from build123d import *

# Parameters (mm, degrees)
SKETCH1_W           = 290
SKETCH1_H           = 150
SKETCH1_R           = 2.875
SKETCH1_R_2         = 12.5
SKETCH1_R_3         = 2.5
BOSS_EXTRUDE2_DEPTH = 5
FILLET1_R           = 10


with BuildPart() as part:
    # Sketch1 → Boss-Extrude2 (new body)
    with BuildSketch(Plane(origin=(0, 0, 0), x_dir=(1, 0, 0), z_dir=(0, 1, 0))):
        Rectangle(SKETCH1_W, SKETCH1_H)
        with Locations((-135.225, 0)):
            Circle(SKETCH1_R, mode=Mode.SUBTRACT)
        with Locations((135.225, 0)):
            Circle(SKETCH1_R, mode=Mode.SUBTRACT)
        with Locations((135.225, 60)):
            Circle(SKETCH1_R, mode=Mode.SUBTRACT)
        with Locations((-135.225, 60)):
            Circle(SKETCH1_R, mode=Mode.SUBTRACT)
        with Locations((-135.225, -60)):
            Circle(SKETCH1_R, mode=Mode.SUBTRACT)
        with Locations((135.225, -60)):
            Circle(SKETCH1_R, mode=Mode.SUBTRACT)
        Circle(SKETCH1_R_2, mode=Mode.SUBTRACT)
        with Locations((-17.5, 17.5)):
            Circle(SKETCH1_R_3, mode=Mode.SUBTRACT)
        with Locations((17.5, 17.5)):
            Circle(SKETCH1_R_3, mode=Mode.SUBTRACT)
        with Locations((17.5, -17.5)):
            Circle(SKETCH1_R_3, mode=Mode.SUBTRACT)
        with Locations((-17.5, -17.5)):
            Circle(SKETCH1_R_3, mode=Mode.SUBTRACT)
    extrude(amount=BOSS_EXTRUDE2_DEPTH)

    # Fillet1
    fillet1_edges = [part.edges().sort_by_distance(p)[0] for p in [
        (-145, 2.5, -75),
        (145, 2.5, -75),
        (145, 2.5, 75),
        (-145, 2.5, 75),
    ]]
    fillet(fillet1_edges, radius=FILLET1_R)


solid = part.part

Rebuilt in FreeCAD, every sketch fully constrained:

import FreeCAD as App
import Part
import Sketcher

V = App.Vector


def edges_at(feature, points):
    """Names of the edges that pass closest to the given points."""
    edges = feature.Shape.Edges
    near = lambda p: min(range(len(edges)), key=lambda i: edges[i].distToShape(Part.Vertex(*p))[0])
    return sorted({f"Edge{near(p) + 1}" for p in points})

doc = App.newDocument("Part")
body = doc.addObject("PartDesign::Body", "Body")

sketch1 = body.newObject("Sketcher::SketchObject", "Sketch")
sketch1.AttachmentSupport = (doc.getObject("XZ_Plane"), [""])
sketch1.MapMode = "FlatFace"
sketch1.addGeometry([
    Part.LineSegment(V(-145, -75, 0), V(-145, 75, 0)),
    Part.LineSegment(V(-145, 75, 0), V(145, 75, 0)),
    Part.LineSegment(V(145, 75, 0), V(145, -75, 0)),
    Part.LineSegment(V(145, -75, 0), V(-145, -75, 0)),
    Part.Circle(V(-135.2, 60, 0), V(0, 0, 1), 2.9),
    Part.Circle(V(-135.2, 0, 0), V(0, 0, 1), 2.9),
    Part.Circle(V(-17.5, 17.5, 0), V(0, 0, 1), 2.5),
    Part.Circle(V(135.2, 60, 0), V(0, 0, 1), 2.9),
    Part.Circle(V(17.5, 17.5, 0), V(0, 0, 1), 2.5),
    Part.Circle(V(0, 0, 0), V(0, 0, 1), 12.5),
    Part.Circle(V(135.2, 0, 0), V(0, 0, 1), 2.9),
    Part.Circle(V(-17.5, -17.5, 0), V(0, 0, 1), 2.5),
    Part.Circle(V(-135.2, -60, 0), V(0, 0, 1), 2.9),
    Part.Circle(V(17.5, -17.5, 0), V(0, 0, 1), 2.5),
    Part.Circle(V(135.2, -60, 0), V(0, 0, 1), 2.9),
], False)
sketch1.addConstraint([
    Sketcher.Constraint("Coincident", 0, 2, 1, 1),
    Sketcher.Constraint("Coincident", 1, 2, 2, 1),
    Sketcher.Constraint("Coincident", 2, 2, 3, 1),
    Sketcher.Constraint("Coincident", 3, 2, 0, 1),
    Sketcher.Constraint("Vertical", 0),
    Sketcher.Constraint("Horizontal", 1),
    Sketcher.Constraint("Vertical", 2),
    Sketcher.Constraint("Horizontal", 3),
    Sketcher.Constraint("Coincident", 9, 3, -1, 1),
    Sketcher.Constraint("Equal", 4, 5),
    Sketcher.Constraint("Equal", 5, 7),
    Sketcher.Constraint("Equal", 6, 8),
    Sketcher.Constraint("Equal", 7, 10),
    Sketcher.Constraint("Equal", 8, 11),
    Sketcher.Constraint("Equal", 10, 12),
    Sketcher.Constraint("Equal", 11, 13),
    Sketcher.Constraint("Equal", 12, 14),
    Sketcher.Constraint("Symmetric", 5, 3, 10, 3, -1, 1),
    Sketcher.Constraint("Symmetric", 8, 3, 11, 3, -1, 1),
    Sketcher.Constraint("Symmetric", 7, 3, 12, 3, -1, 1),
    Sketcher.Constraint("Symmetric", 6, 3, 13, 3, -1, 1),
    Sketcher.Constraint("Symmetric", 4, 3, 14, 3, -1, 1),
    Sketcher.Constraint("Symmetric", 0, 2, 2, 2, -1, 1),
    Sketcher.Constraint("Symmetric", 4, 3, 7, 3, -2),
    Sketcher.Constraint("Symmetric", 6, 3, 8, 3, -2),
    Sketcher.Constraint("PointOnObject", 5, 3, -1),
    Sketcher.Constraint("Vertical", 4, 3, 5, 3),
    Sketcher.Constraint("Diameter", 6, 5.0),
    Sketcher.Constraint("Diameter", 9, 25.0),
    Sketcher.Constraint("Diameter", 4, 5.75),
    Sketcher.Constraint("DistanceX", 1, 1, 1, 2, 290.0),
    Sketcher.Constraint("DistanceY", 0, 1, 0, 2, 150.0),
    Sketcher.Constraint("DistanceY", -1, 1, 4, 3, 60.0),
    Sketcher.Constraint("DistanceX", 6, 3, 8, 3, 35.0),
    Sketcher.Constraint("DistanceY", 11, 3, 6, 3, 35.0),
    Sketcher.Constraint("DistanceX", 4, 3, 7, 3, 270.45),
])
pad1 = body.newObject("PartDesign::Pad", "Pad")
pad1.Profile = sketch1
pad1.Length = 5
pad1.Reversed = True
doc.recompute()

fillet = body.newObject("PartDesign::Fillet", "Fillet")
fillet.Base = (pad1, edges_at(pad1, [
    (-145, 2.5, -75),
    (145, 2.5, -75),
    (145, 2.5, 75),
    (-145, 2.5, 75),
]))
fillet.Radius = 10

doc.recompute()
